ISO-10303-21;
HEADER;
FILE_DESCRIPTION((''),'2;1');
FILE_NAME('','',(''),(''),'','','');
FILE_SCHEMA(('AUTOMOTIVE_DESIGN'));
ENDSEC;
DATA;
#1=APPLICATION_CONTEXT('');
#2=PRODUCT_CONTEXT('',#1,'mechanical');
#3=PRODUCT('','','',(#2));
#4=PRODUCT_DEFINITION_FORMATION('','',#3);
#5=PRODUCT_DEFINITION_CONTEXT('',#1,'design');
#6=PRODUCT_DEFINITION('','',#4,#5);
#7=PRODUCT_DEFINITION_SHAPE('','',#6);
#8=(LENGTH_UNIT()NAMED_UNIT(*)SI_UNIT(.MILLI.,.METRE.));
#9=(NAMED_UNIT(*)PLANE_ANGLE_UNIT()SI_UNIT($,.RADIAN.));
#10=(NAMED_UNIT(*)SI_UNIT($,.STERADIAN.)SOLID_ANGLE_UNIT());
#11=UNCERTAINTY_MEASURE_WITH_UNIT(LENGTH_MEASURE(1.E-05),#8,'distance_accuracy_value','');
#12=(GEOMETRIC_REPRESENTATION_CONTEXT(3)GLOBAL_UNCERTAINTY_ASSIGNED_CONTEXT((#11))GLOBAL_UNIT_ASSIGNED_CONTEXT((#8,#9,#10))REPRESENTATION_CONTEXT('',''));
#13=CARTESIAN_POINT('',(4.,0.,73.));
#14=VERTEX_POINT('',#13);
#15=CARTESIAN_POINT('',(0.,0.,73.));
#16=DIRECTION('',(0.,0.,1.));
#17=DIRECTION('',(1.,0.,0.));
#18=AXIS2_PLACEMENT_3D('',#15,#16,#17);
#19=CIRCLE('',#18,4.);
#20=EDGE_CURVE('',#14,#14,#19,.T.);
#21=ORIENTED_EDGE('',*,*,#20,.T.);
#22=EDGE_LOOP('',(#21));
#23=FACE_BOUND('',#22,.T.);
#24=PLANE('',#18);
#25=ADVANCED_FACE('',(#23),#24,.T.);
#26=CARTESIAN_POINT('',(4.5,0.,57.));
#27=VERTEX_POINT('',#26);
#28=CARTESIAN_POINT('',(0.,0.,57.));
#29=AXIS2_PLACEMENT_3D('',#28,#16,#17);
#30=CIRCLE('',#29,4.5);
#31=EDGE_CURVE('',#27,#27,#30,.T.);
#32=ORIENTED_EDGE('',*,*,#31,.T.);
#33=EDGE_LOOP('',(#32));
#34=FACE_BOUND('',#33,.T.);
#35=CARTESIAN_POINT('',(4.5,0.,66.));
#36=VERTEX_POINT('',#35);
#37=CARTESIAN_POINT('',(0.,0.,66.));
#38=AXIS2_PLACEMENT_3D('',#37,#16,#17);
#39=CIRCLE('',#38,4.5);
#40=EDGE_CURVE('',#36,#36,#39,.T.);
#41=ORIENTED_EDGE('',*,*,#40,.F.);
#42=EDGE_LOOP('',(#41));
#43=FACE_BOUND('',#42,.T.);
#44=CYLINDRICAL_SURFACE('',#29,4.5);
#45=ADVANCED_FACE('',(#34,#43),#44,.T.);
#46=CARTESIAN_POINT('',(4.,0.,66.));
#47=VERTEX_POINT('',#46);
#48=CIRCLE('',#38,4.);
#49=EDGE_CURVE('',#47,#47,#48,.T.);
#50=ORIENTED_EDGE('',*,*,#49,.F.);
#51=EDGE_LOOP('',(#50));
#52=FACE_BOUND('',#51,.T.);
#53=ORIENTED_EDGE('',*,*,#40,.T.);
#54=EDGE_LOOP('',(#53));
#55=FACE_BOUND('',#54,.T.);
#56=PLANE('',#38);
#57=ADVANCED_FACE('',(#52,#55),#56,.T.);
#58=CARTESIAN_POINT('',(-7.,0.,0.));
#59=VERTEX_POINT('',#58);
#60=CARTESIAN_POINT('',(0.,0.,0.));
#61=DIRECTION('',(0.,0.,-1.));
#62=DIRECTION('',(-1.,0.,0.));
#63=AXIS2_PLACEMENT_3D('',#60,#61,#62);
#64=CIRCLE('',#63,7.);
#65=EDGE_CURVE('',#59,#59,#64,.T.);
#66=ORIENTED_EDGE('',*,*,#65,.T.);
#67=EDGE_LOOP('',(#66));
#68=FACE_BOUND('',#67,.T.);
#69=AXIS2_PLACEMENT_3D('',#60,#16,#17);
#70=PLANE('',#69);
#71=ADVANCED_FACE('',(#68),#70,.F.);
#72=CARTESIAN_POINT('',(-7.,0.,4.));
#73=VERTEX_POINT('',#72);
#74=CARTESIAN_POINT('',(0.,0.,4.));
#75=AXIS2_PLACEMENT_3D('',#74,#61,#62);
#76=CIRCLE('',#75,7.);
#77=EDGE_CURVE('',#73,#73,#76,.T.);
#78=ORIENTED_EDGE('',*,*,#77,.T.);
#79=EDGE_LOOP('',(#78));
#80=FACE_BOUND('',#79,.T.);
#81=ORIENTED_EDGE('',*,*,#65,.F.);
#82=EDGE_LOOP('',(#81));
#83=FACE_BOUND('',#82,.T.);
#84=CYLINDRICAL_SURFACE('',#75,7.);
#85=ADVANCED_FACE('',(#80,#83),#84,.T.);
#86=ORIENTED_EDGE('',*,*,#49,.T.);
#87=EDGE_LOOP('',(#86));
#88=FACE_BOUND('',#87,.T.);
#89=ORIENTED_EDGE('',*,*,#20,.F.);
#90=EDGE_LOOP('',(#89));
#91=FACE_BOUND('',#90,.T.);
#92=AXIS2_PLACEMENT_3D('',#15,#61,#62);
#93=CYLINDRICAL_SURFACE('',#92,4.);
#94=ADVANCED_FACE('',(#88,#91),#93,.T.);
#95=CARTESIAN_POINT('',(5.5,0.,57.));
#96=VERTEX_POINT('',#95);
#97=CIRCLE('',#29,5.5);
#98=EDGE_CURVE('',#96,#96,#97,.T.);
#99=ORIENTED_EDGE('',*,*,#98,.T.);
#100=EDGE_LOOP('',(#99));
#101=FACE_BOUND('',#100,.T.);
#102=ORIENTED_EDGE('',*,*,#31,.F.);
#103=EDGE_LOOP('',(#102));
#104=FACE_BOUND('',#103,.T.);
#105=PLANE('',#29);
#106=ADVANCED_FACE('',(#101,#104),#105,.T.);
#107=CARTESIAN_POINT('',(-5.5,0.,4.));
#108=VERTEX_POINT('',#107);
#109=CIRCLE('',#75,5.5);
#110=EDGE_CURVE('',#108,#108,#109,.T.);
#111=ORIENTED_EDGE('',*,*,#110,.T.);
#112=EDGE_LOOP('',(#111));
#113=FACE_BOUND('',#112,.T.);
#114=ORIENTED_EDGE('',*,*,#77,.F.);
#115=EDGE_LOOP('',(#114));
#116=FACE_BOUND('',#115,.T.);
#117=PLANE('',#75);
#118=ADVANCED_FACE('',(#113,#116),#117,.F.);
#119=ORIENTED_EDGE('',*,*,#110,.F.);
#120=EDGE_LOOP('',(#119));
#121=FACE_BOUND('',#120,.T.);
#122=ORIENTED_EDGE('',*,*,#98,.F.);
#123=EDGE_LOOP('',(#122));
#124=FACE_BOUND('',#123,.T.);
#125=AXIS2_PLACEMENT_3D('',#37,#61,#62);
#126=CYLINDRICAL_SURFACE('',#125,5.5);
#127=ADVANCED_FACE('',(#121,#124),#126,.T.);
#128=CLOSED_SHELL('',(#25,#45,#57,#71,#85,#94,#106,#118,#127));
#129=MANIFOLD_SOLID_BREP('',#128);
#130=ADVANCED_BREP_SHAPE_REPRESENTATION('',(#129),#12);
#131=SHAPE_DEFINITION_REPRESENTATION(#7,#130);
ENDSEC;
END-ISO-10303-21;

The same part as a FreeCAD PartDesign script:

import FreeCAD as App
import Part
import Sketcher

V = App.Vector
Q = App.Units.Quantity

doc = App.newDocument("Part")
body = doc.addObject("PartDesign::Body", "Body")

sketch1 = body.newObject("Sketcher::SketchObject", "Sketch")
sketch1.AttachmentSupport = (doc.getObject("XY_Plane"), [""])
sketch1.MapMode = "FlatFace"
sketch1.addGeometry(Part.Circle(V(0, 0, 0), V(0, 0, 1), 6), False)
sketch1.addConstraint([
    Sketcher.Constraint("Coincident", 0, 3, -1, 1),
    Sketcher.Constraint("Diameter", 0, Q("11 mm")),
])
pad1 = body.newObject("PartDesign::Pad", "Pad")
pad1.Profile = sketch1
pad1.Length = 66

sketch2 = body.newObject("Sketcher::SketchObject", "Sketch001")
sketch2.AttachmentSupport = (doc.getObject("XY_Plane"), [""])
sketch2.MapMode = "FlatFace"
sketch2.AttachmentOffset = App.Placement(V(0, 0, 57), App.Rotation())
sketch2.addGeometry([
    Part.Circle(V(0, 0, 0), V(0, 0, 1), 5.5),
    Part.Circle(V(0, 0, 0), V(0, 0, 1), 4.5),
], False)
sketch2.addConstraint([
    Sketcher.Constraint("Coincident", 0, 3, -1, 1),
    Sketcher.Constraint("Coincident", 1, 3, -1, 1),
    Sketcher.Constraint("Diameter", 0, Q("11 mm")),
    Sketcher.Constraint("Diameter", 1, Q("9 mm")),
])
pocket1 = body.newObject("PartDesign::Pocket", "Pocket")
pocket1.Profile = sketch2
pocket1.Length = 9
pocket1.Reversed = True

sketch3 = body.newObject("Sketcher::SketchObject", "Sketch002")
sketch3.AttachmentSupport = (doc.getObject("XY_Plane"), [""])
sketch3.MapMode = "FlatFace"
sketch3.addGeometry(Part.Circle(V(0, 0, 0), V(0, 0, 1), 7), False)
sketch3.addConstraint([
    Sketcher.Constraint("Coincident", 0, 3, -1, 1),
    Sketcher.Constraint("Diameter", 0, Q("14 mm")),
])
pad2 = body.newObject("PartDesign::Pad", "Pad001")
pad2.Profile = sketch3
pad2.Length = 4

sketch4 = body.newObject("Sketcher::SketchObject", "Sketch003")
sketch4.AttachmentSupport = (doc.getObject("XY_Plane"), [""])
sketch4.MapMode = "FlatFace"
sketch4.AttachmentOffset = App.Placement(V(0, 0, 66), App.Rotation())
sketch4.addGeometry(Part.Circle(V(0, 0, 0), V(0, 0, 1), 4), False)
sketch4.addConstraint([
    Sketcher.Constraint("Coincident", 0, 3, -1, 1),
    Sketcher.Constraint("Diameter", 0, Q("8 mm")),
])
pad3 = body.newObject("PartDesign::Pad", "Pad002")
pad3.Profile = sketch4
pad3.Length = 7

doc.recompute()
